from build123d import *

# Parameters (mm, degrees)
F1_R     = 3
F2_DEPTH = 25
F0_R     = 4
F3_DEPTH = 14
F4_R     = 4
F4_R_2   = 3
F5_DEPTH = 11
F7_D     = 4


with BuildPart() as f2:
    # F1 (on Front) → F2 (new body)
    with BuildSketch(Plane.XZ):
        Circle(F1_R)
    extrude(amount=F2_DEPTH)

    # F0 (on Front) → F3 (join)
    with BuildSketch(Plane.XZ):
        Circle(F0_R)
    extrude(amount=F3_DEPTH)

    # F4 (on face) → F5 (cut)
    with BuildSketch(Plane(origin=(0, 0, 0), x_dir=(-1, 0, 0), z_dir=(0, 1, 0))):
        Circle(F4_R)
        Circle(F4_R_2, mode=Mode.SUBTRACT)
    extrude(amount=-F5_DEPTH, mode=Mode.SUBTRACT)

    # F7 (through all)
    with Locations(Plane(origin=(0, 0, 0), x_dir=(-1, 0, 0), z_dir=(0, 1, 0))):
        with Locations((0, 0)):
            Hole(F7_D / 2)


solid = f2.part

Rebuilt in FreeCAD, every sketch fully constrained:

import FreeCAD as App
import Part
import Sketcher
Q = App.Units.Quantity

doc = App.newDocument("Part")
body = doc.addObject("PartDesign::Body", "Body")

sketch1 = doc.addObject("Sketcher::SketchObject", "Sketch")
body.addObject(sketch1)
sketch1.AttachmentSupport = (doc.XZ_Plane, [""])
sketch1.MapMode = "FlatFace"
sketch1.addGeometry(Part.Circle(App.Vector(0, 0, 0), App.Vector(0, 0, 1), 3), False)
sketch1.addConstraint(Sketcher.Constraint("Coincident", 0, 3, -1, 1))
sketch1.addConstraint(Sketcher.Constraint("Diameter", 0, Q("6 mm")))
pad1 = doc.addObject("PartDesign::Pad", "Pad")
body.addObject(pad1)
pad1.Profile = sketch1
pad1.Length = 25

sketch2 = doc.addObject("Sketcher::SketchObject", "Sketch001")
body.addObject(sketch2)
sketch2.AttachmentSupport = (doc.XZ_Plane, [""])
sketch2.MapMode = "FlatFace"
sketch2.addGeometry(Part.Circle(App.Vector(0, 0, 0), App.Vector(0, 0, 1), 4), False)
sketch2.addConstraint(Sketcher.Constraint("Coincident", 0, 3, -1, 1))
sketch2.addConstraint(Sketcher.Constraint("Diameter", 0, Q("8 mm")))
pad2 = doc.addObject("PartDesign::Pad", "Pad001")
body.addObject(pad2)
pad2.Profile = sketch2
pad2.Length = 14

sketch3 = doc.addObject("Sketcher::SketchObject", "Sketch002")
body.addObject(sketch3)
sketch3.AttachmentSupport = (doc.XZ_Plane, [""])
sketch3.MapMode = "FlatFace"
sketch3.addGeometry(Part.Circle(App.Vector(0, 0, 0), App.Vector(0, 0, 1), 4), False)
sketch3.addGeometry(Part.Circle(App.Vector(0, 0, 0), App.Vector(0, 0, 1), 3), False)
sketch3.addConstraint(Sketcher.Constraint("Coincident", 0, 3, -1, 1))
sketch3.addConstraint(Sketcher.Constraint("Coincident", 1, 3, -1, 1))
sketch3.addConstraint(Sketcher.Constraint("Diameter", 0, Q("8 mm")))
sketch3.addConstraint(Sketcher.Constraint("Diameter", 1, Q("6 mm")))
pocket1 = doc.addObject("PartDesign::Pocket", "Pocket")
body.addObject(pocket1)
pocket1.Profile = sketch3
pocket1.Length = 11
pocket1.Reversed = True

sketch4 = doc.addObject("Sketcher::SketchObject", "Sketch003")
body.addObject(sketch4)
sketch4.AttachmentSupport = (doc.XZ_Plane, [""])
sketch4.MapMode = "FlatFace"
sketch4.addGeometry(Part.Circle(App.Vector(0, 0, 0), App.Vector(0, 0, 1), 2), False)
sketch4.addConstraint(Sketcher.Constraint("Coincident", 0, 3, -1, 1))
sketch4.addConstraint(Sketcher.Constraint("Diameter", 0, Q("4 mm")))
doc.recompute()
hole = doc.addObject("PartDesign::Hole", "Hole")
body.addObject(hole)
hole.Profile = sketch4
hole.ThreadType = "None"
hole.Diameter = 4
hole.DepthType = "ThroughAll"
hole.Reversed = True

doc.recompute()
